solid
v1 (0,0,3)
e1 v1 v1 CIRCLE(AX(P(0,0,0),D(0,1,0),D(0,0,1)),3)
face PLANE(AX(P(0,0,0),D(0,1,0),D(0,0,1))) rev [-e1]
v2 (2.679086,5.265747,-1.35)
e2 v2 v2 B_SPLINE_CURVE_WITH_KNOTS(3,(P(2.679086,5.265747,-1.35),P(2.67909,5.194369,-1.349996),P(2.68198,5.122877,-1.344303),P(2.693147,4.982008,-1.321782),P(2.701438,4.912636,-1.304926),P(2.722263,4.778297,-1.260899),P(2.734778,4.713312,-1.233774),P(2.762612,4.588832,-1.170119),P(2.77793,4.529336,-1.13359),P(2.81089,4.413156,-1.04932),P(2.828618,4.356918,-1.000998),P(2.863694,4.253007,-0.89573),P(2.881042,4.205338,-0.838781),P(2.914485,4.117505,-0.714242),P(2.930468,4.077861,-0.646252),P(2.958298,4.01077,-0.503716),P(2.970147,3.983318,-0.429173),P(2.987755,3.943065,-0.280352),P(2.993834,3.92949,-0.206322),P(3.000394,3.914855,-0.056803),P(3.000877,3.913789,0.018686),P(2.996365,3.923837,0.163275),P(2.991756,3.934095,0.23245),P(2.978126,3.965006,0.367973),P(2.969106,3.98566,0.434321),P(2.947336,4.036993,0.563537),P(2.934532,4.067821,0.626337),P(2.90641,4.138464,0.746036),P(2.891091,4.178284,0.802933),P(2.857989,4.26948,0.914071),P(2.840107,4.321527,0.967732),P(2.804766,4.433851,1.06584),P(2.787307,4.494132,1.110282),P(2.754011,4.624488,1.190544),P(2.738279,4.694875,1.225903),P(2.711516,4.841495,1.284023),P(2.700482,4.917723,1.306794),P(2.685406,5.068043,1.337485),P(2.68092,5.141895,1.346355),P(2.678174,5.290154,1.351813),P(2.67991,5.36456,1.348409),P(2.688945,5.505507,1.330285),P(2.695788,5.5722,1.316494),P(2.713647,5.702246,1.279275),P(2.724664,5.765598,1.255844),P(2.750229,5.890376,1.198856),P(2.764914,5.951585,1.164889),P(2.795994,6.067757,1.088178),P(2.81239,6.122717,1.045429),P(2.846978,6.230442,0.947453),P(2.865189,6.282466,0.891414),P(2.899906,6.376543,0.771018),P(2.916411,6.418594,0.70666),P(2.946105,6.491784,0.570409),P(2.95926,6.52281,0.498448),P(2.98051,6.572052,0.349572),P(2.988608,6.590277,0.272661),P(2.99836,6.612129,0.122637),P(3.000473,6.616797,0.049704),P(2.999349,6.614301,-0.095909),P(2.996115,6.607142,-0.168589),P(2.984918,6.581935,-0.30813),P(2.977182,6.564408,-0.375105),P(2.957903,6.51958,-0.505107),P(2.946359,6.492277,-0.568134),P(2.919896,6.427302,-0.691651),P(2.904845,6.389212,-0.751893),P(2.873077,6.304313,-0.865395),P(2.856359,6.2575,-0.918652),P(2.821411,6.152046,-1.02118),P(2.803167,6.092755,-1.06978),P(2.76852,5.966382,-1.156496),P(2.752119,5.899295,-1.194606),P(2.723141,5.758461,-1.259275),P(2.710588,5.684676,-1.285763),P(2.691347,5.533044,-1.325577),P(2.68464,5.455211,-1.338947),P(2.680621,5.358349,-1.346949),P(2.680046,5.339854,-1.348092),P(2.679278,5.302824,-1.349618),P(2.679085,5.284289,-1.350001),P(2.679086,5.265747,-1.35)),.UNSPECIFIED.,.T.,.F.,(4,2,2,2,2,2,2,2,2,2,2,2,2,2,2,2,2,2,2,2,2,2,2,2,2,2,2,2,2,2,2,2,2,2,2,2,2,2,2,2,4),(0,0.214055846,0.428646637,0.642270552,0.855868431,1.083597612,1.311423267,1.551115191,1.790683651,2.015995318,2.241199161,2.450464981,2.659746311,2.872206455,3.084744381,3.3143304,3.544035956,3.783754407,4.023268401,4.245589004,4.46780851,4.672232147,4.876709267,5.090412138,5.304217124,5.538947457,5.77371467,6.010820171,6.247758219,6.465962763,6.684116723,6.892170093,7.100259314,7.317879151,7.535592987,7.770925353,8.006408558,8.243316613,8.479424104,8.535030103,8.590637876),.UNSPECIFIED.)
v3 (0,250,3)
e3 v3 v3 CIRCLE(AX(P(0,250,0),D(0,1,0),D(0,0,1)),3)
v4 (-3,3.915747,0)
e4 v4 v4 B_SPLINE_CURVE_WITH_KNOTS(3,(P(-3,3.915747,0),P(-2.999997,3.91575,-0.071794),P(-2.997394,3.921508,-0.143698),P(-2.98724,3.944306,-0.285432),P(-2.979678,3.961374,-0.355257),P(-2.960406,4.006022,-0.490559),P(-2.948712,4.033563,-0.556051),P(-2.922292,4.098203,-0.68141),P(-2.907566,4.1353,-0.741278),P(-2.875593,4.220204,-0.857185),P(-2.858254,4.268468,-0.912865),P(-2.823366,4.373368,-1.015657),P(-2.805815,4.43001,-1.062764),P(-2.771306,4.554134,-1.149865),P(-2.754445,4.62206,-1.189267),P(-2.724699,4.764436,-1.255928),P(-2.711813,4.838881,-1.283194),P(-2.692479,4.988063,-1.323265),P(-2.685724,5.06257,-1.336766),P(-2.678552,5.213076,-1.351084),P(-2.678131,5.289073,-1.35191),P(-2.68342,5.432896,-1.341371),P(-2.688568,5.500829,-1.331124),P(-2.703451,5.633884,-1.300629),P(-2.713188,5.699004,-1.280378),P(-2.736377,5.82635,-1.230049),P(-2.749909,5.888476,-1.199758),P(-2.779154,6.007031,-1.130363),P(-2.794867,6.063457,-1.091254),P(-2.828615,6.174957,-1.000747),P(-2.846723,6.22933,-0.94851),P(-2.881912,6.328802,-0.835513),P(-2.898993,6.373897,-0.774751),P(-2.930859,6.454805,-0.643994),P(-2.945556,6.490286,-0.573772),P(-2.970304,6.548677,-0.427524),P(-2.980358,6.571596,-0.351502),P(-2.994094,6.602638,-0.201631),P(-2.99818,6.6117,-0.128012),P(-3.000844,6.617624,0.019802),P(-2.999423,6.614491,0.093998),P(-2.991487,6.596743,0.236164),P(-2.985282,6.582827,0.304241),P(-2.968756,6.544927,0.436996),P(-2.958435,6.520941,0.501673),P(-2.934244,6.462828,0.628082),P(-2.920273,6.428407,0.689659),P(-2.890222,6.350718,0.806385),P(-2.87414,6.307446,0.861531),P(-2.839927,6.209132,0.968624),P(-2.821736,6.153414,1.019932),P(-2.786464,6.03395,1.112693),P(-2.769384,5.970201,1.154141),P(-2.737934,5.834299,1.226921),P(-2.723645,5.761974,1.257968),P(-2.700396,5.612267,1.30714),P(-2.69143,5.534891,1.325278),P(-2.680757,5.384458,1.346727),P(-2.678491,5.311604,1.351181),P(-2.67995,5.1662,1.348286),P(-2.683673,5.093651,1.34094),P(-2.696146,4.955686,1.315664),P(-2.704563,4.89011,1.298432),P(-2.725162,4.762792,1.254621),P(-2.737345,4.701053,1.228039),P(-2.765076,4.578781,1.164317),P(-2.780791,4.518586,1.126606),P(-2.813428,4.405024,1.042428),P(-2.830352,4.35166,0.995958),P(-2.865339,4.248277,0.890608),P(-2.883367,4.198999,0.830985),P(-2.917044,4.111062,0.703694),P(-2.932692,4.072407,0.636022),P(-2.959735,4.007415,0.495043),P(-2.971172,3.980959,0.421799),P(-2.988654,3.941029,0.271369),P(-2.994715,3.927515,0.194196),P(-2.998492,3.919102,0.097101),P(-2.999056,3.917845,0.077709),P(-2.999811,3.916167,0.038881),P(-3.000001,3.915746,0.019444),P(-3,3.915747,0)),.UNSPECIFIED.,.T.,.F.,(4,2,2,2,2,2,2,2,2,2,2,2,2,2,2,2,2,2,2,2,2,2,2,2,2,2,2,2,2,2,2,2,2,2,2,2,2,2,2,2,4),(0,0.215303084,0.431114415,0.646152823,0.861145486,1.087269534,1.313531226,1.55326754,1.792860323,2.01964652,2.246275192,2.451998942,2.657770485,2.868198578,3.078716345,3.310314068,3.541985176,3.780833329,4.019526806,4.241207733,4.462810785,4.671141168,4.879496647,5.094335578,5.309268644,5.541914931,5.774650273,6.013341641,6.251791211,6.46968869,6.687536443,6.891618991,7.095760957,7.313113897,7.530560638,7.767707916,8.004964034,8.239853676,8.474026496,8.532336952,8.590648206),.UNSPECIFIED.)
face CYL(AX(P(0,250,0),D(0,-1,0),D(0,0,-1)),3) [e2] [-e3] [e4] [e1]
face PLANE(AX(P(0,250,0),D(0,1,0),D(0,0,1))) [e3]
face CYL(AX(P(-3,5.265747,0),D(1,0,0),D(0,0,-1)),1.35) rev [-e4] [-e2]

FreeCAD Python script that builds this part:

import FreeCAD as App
import Part
import Sketcher
from FreeCAD import Vector

doc = App.newDocument("Part")
params = doc.addObject("Spreadsheet::Sheet", "Params")
for row, (alias, value) in enumerate([
    ("sketch1_diameter", "6 mm"),
    ("pad1_length", "250 mm"),
    ("sketch2_diameter", "2.7 mm"),
], start=1):
    params.set(f"A{row}", alias)
    params.set(f"B{row}", "=" + value)
    params.setAlias(f"B{row}", alias)

body = doc.addObject("PartDesign::Body", "Body")

# Sketch on XZ plane
sketch1 = body.newObject("Sketcher::SketchObject", "Sketch")
sketch1.AttachmentSupport = (doc.getObject("XZ_Plane"), [""])
sketch1.MapMode = "FlatFace"
sketch1.addGeometry(Part.Circle(Vector(0, 0, 0), Vector(0, 0, 1), 3), False)
sketch1.addConstraint(Sketcher.Constraint("Coincident", 0, 3, -1, 1))
sketch1.addConstraint(Sketcher.Constraint("Diameter", 0, 6.0))
sketch1.setExpression("Constraints[1]", "Params.sketch1_diameter")
pad1 = body.newObject("PartDesign::Pad", "Pad")
pad1.Profile = sketch1
pad1.setExpression("Length", "Params.pad1_length")
pad1.Reversed = True

# Sketch on YZ plane
sketch2 = body.newObject("Sketcher::SketchObject", "Sketch001")
sketch2.AttachmentSupport = (doc.getObject("YZ_Plane"), [""])
sketch2.MapMode = "FlatFace"
sketch2.AttachmentOffset = App.Placement(Vector(0, 0, 3), App.Rotation())
sketch2.addGeometry(Part.Circle(Vector(5.3, 0, 0), Vector(0, 0, 1), 1.4), False)
sketch2.addConstraint(Sketcher.Constraint("PointOnObject", 0, 3, -1))
sketch2.addConstraint(Sketcher.Constraint("Diameter", 0, 2.7))
sketch2.addConstraint(Sketcher.Constraint("DistanceX", -1, 1, 0, 3, 5.265747))
sketch2.setExpression("Constraints[1]", "Params.sketch2_diameter")
pocket1 = body.newObject("PartDesign::Pocket", "Pocket")
pocket1.Profile = sketch2
pocket1.Type = "ThroughAll"

doc.recompute()
